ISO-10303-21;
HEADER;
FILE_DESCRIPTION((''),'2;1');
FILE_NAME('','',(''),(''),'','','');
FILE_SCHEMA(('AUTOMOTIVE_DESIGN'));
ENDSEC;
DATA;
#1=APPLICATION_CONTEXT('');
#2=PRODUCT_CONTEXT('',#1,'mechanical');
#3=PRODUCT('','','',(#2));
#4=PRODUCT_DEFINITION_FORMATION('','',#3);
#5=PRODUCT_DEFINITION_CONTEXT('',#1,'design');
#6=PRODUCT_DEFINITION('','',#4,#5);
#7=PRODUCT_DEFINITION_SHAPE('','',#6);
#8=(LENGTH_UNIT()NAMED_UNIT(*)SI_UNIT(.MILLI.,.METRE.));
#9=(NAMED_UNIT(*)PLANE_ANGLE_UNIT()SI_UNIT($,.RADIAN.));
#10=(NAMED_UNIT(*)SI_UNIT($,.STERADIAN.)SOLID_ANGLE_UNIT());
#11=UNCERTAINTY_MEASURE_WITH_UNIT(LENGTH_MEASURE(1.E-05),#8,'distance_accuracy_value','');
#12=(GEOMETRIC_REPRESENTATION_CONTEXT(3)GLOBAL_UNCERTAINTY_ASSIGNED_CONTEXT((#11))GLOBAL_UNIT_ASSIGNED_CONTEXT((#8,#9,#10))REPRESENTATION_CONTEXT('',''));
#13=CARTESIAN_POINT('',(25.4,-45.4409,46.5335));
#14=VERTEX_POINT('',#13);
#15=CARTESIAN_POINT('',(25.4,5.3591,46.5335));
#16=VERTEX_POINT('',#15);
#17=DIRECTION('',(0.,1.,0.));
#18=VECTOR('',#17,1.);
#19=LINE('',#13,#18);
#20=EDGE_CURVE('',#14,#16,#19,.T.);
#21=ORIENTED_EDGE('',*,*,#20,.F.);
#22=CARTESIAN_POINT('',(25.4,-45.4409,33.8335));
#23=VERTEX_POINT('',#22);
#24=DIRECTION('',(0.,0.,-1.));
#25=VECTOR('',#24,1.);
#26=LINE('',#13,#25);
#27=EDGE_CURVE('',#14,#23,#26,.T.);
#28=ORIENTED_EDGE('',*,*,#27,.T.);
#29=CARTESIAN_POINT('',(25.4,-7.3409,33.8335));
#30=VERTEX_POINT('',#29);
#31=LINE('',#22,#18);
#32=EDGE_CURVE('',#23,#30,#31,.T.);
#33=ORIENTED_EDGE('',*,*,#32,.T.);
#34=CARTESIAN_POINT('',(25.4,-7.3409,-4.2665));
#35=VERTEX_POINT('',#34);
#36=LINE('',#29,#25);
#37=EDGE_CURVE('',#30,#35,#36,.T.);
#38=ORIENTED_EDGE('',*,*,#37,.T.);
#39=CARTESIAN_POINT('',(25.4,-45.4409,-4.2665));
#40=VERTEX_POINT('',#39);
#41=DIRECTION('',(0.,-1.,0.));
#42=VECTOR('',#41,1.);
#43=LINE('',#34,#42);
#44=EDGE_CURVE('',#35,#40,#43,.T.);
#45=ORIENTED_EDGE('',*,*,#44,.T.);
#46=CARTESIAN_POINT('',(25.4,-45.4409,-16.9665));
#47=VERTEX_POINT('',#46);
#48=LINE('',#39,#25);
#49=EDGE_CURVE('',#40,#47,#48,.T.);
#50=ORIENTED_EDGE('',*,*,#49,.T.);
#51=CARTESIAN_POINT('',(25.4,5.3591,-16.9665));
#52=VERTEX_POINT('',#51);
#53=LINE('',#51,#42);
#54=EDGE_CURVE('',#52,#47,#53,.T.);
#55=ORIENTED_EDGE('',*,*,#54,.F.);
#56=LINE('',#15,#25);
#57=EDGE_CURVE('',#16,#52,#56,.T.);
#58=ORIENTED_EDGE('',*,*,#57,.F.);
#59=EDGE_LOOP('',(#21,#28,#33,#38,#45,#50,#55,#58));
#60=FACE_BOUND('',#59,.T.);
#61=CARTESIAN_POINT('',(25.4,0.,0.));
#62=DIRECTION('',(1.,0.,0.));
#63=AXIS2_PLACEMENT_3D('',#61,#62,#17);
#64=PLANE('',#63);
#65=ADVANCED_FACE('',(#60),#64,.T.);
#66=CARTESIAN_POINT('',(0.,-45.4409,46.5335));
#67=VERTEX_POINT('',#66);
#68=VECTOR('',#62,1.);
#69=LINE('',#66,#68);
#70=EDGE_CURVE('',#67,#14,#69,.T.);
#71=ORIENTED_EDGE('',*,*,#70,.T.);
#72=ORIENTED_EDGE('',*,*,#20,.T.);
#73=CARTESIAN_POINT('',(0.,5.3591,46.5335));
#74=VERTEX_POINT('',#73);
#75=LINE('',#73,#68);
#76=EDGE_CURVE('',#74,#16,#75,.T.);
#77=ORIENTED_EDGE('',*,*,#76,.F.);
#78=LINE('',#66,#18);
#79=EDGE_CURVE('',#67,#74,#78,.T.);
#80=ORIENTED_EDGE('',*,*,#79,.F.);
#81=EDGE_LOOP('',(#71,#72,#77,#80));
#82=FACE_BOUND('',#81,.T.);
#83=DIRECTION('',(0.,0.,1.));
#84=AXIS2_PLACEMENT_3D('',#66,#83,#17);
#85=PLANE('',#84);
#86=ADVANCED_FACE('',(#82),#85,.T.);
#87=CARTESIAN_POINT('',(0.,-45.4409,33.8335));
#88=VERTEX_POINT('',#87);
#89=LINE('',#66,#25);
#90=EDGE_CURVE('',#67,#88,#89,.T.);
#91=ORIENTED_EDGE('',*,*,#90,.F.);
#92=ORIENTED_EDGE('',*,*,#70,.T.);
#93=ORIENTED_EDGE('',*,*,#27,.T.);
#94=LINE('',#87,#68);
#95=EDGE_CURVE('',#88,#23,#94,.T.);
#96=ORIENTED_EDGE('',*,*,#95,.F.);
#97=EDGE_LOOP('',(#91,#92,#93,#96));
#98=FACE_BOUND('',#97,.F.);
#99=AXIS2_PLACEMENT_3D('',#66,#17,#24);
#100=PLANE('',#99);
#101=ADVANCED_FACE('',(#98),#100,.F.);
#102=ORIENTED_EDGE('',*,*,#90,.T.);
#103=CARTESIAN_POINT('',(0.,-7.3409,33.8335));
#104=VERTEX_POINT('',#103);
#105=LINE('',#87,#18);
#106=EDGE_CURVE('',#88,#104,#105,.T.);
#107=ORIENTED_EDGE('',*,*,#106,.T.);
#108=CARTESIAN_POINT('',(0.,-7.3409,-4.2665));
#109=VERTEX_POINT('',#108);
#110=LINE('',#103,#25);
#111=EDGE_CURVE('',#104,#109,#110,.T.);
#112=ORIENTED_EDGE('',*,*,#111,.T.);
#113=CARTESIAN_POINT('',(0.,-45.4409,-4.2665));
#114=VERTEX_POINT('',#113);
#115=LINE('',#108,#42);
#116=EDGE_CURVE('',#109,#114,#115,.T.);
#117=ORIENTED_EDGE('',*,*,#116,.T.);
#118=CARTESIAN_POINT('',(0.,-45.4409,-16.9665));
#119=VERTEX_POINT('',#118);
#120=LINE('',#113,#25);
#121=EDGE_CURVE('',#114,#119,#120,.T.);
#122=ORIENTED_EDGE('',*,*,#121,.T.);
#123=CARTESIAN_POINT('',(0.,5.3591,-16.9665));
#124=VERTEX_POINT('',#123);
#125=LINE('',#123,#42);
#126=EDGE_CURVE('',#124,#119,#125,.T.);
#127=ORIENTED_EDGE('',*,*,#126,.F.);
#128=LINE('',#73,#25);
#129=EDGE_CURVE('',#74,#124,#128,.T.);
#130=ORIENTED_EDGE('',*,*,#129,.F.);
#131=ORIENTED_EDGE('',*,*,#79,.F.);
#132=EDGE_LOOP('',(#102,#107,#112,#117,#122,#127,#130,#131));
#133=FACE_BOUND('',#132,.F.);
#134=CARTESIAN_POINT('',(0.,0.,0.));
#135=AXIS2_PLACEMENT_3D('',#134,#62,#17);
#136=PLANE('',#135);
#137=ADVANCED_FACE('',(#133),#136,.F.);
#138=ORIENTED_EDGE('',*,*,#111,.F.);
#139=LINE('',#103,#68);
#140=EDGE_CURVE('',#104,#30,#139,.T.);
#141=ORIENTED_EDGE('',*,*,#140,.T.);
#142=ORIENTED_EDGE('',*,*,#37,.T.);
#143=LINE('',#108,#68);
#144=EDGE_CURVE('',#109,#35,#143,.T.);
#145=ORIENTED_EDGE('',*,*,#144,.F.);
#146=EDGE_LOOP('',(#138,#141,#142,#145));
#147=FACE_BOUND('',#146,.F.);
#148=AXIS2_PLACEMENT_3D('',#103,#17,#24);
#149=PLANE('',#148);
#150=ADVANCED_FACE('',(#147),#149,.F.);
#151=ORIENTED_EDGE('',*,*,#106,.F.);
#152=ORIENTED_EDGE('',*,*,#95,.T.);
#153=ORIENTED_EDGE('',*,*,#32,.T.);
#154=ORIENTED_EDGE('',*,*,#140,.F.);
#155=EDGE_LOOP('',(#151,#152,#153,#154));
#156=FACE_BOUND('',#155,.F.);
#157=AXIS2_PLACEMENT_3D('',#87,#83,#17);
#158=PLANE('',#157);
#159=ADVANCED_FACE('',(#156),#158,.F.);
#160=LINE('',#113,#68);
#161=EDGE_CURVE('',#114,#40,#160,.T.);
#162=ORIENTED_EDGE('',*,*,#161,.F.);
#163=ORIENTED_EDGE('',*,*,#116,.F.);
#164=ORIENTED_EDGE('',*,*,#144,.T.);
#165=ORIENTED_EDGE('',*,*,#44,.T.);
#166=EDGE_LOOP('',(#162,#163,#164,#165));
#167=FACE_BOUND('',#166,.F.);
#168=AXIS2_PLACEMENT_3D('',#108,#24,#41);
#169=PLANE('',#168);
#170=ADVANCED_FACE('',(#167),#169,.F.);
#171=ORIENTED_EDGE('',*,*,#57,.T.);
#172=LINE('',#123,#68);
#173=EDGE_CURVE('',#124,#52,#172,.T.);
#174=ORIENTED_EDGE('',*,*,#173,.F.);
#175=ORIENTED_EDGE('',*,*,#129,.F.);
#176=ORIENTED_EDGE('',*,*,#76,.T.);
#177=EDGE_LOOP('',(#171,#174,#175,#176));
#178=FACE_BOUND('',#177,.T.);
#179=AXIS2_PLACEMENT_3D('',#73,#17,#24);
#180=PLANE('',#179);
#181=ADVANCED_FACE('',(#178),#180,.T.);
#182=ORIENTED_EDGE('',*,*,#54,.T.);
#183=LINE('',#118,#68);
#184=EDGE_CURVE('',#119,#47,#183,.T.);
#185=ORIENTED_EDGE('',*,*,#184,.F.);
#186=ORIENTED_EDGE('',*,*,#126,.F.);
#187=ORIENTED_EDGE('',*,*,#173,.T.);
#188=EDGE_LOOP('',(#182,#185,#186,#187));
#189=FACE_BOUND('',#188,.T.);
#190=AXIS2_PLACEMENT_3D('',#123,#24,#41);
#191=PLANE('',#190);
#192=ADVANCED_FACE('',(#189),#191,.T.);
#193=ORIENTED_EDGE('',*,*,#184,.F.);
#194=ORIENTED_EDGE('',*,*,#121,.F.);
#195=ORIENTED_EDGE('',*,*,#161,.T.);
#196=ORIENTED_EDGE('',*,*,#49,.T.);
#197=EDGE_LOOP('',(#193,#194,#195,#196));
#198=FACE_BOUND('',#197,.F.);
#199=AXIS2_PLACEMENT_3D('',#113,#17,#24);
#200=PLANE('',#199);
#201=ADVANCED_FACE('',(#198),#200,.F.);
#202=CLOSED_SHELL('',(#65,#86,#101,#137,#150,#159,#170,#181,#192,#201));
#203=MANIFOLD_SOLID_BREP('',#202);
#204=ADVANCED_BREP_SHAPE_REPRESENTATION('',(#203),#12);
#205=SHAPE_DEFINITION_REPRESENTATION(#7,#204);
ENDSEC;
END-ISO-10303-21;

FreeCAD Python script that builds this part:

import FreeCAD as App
import Part
import Sketcher
Q = App.Units.Quantity

doc = App.newDocument("Part")
params = doc.addObject("Spreadsheet::Sheet", "Params")
for row, (alias, value) in enumerate([
    ("sketch1_width", "2 in"),
    ("sketch1_width2", "1.5 in"),
    ("sketch1_height", "0.5 in"),
    ("pad1_length", "1 in"),
], start=1):
    params.set(f"A{row}", alias)
    params.set(f"B{row}", "=" + value)
    params.setAlias(f"B{row}", alias)

body = doc.addObject("PartDesign::Body", "Body")

# Sketch on YZ plane
sketch1 = body.newObject("Sketcher::SketchObject", "Sketch")
sketch1.AttachmentSupport = (doc.getObject("YZ_Plane"), [""])
sketch1.MapMode = "FlatFace"
sketch1.addGeometry([
    Part.LineSegment(App.Vector(5, 47, 0), App.Vector(-45, 47, 0)),  # 0
    Part.LineSegment(App.Vector(-45, 47, 0), App.Vector(-45, 34, 0)),  # 1
    Part.LineSegment(App.Vector(-45, 34, 0), App.Vector(-7, 34, 0)),  # 2
    Part.LineSegment(App.Vector(-7, 34, 0), App.Vector(-7, -4, 0)),  # 3
    Part.LineSegment(App.Vector(-7, -4, 0), App.Vector(-45, -4, 0)),  # 4
    Part.LineSegment(App.Vector(-45, -4, 0), App.Vector(-45, -17, 0)),  # 5
    Part.LineSegment(App.Vector(-45, -17, 0), App.Vector(5, -17, 0)),  # 6
    Part.LineSegment(App.Vector(5, -17, 0), App.Vector(5, 47, 0)),  # 7
], False)
sketch1.addConstraint([
    Sketcher.Constraint("Coincident", 0, 2, 1, 1),
    Sketcher.Constraint("Coincident", 1, 2, 2, 1),
    Sketcher.Constraint("Coincident", 2, 2, 3, 1),
    Sketcher.Constraint("Coincident", 3, 2, 4, 1),
    Sketcher.Constraint("Coincident", 4, 2, 5, 1),
    Sketcher.Constraint("Coincident", 5, 2, 6, 1),
    Sketcher.Constraint("Coincident", 6, 2, 7, 1),
    Sketcher.Constraint("Coincident", 7, 2, 0, 1),
    Sketcher.Constraint("Horizontal", 0),
    Sketcher.Constraint("Vertical", 1),
    Sketcher.Constraint("Horizontal", 2),
    Sketcher.Constraint("Vertical", 3),
    Sketcher.Constraint("Horizontal", 4),
    Sketcher.Constraint("Vertical", 5),
    Sketcher.Constraint("Horizontal", 6),
    Sketcher.Constraint("Vertical", 7),
    Sketcher.Constraint("Vertical", 1, 2, 4, 2),
    Sketcher.Constraint("Equal", 4, 3),
    Sketcher.Constraint("Equal", 1, 5),
    Sketcher.Constraint("DistanceX", 0, 2, 0, 1, Q("2 in")),
    Sketcher.Constraint("DistanceX", 2, 1, 2, 2, Q("1.5 in")),
    Sketcher.Constraint("DistanceY", 1, 2, 1, 1, Q("0.5 in")),
    Sketcher.Constraint("DistanceX", 0, 2, -1, 1, Q("1.789 in")),
    Sketcher.Constraint("DistanceY", -1, 1, 0, 2, 46.5335),
])
sketch1.setExpression("Constraints[19]", "Params.sketch1_width")
sketch1.setExpression("Constraints[20]", "Params.sketch1_width2")
sketch1.setExpression("Constraints[21]", "Params.sketch1_height")
pad1 = body.newObject("PartDesign::Pad", "Pad")
pad1.Profile = sketch1
pad1.setExpression("Length", "Params.pad1_length")

doc.recompute()
